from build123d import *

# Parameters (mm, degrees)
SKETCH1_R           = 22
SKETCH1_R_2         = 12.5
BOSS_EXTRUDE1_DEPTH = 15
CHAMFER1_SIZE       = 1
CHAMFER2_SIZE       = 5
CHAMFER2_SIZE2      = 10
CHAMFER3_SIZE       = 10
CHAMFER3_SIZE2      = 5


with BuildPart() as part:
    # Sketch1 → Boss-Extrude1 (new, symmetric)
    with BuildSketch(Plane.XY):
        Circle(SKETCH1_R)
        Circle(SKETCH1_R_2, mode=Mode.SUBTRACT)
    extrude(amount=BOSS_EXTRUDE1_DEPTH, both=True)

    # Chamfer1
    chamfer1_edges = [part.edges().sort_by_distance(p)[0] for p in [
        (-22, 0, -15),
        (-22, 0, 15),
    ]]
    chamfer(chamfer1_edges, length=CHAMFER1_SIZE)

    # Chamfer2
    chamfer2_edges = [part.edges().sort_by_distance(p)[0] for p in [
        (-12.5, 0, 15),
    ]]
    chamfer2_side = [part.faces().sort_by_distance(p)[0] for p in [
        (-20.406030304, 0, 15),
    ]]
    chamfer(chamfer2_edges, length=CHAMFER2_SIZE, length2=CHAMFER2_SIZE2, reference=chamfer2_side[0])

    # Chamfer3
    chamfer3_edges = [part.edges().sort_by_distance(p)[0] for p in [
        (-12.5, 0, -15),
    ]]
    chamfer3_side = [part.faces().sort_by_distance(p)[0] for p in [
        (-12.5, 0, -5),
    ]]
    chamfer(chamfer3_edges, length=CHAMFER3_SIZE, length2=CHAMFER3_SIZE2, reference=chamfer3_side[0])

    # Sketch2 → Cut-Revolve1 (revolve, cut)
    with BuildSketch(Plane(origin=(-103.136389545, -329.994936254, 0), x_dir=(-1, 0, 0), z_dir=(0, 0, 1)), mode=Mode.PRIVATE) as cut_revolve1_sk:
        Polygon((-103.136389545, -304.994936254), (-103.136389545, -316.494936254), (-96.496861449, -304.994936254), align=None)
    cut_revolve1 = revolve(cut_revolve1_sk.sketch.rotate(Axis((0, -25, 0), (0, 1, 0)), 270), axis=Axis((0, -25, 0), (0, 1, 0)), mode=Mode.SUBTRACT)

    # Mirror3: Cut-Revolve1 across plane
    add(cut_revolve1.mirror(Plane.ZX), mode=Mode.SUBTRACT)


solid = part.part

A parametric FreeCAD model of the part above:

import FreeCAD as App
import Part
import Sketcher
Q = App.Units.Quantity


def edges_at(feature, points):
    """Names of the edges that pass closest to the given points."""
    edges = feature.Shape.Edges
    near = lambda p: min(range(len(edges)), key=lambda i: edges[i].distToShape(Part.Vertex(*p))[0])
    return sorted({f"Edge{near(p) + 1}" for p in points})

doc = App.newDocument("Part")
body = doc.addObject("PartDesign::Body", "Body")

# Sketch on XY plane
sketch1 = body.newObject("Sketcher::SketchObject", "Sketch")
sketch1.AttachmentSupport = (doc.getObject("XY_Plane"), [""])
sketch1.MapMode = "FlatFace"
sketch1.addGeometry([
    Part.Circle(App.Vector(0, 0, 0), App.Vector(0, 0, 1), 22),
    Part.Circle(App.Vector(0, 0, 0), App.Vector(0, 0, 1), 12),
], False)
sketch1.addConstraint([
    Sketcher.Constraint("Coincident", 0, 3, -1, 1),
    Sketcher.Constraint("Coincident", 1, 3, -1, 1),
    Sketcher.Constraint("Diameter", 0, 44.0),
    Sketcher.Constraint("Diameter", 1, 25.0),
])
pad1 = body.newObject("PartDesign::Pad", "Pad")
pad1.Profile = sketch1
pad1.Length = 30
pad1.Midplane = True
doc.recompute()

chamfer = body.newObject("PartDesign::Chamfer", "Chamfer")
chamfer.Base = (pad1, edges_at(pad1, [(-22, 0, -15), (-22, 0, 15)]))
chamfer.Size = 1
doc.recompute()

chamfer2 = body.newObject("PartDesign::Chamfer", "Chamfer001")
chamfer2.Base = (chamfer, edges_at(chamfer, [(-12.5, 0, 15)]))
chamfer2.ChamferType = "Two distances"
chamfer2.Size = 5
chamfer2.Size2 = 10
doc.recompute()

chamfer3 = body.newObject("PartDesign::Chamfer", "Chamfer002")
chamfer3.Base = (chamfer2, edges_at(chamfer2, [(-12.5, 0, -15)]))
chamfer3.ChamferType = "Two distances"
chamfer3.Size = 10
chamfer3.Size2 = 5

# Sketch on XY plane
sketch2 = body.newObject("Sketcher::SketchObject", "Sketch001")
sketch2.AttachmentSupport = (doc.getObject("XY_Plane"), [""])
sketch2.MapMode = "FlatFace"
sketch2.addGeometry([
    Part.LineSegment(App.Vector(0, -25, 0), App.Vector(0, -14, 0)),
    Part.LineSegment(App.Vector(0, -14, 0), App.Vector(-7, -25, 0)),
    Part.LineSegment(App.Vector(-7, -25, 0), App.Vector(0, -25, 0)),
], False)
sketch2.addConstraint([
    Sketcher.Constraint("Coincident", 0, 2, 1, 1),
    Sketcher.Constraint("Coincident", 1, 2, 2, 1),
    Sketcher.Constraint("Coincident", 2, 2, 0, 1),
    Sketcher.Constraint("Vertical", 0),
    Sketcher.Constraint("Horizontal", 2),
    Sketcher.Constraint("PointOnObject", 0, 2, -2),
    Sketcher.Constraint("Angle", 1, Q("-120 deg")),
    Sketcher.Constraint("DistanceY", 0, 1, 0, 2, 11.5),
    Sketcher.Constraint("DistanceY", 1, 2, -1, 1, 25.0),
])
groove = body.newObject("PartDesign::Groove", "Groove")
groove.Profile = sketch2
groove.ReferenceAxis = (sketch2, ["V_Axis"])
groove.Angle = 360
doc.recompute()

mirrored = body.newObject("PartDesign::Mirrored", "Mirrored")
mirrored.Originals = [groove]
mirrored.MirrorPlane = (doc.getObject("XZ_Plane"), [""])
body.Tip = mirrored

doc.recompute()
